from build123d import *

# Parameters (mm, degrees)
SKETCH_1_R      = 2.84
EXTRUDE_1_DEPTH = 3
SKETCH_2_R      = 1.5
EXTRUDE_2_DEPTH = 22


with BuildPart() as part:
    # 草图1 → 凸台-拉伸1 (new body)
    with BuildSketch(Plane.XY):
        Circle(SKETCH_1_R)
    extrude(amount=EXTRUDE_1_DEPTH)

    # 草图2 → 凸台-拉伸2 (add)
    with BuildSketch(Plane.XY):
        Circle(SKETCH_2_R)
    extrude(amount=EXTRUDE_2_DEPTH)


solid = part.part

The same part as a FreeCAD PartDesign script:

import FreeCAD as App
import Part
import Sketcher

doc = App.newDocument("Part")
body = doc.addObject("PartDesign::Body", "Body")

sketch1 = body.newObject("Sketcher::SketchObject", "Sketch")
sketch1.AttachmentSupport = (doc.getObject("XY_Plane"), [""])
sketch1.MapMode = "FlatFace"
sketch1.addGeometry(Part.Circle(App.Vector(0, 0, 0), App.Vector(0, 0, 1), 2.8), False)
sketch1.addConstraint(Sketcher.Constraint("Coincident", 0, 3, -1, 1))
sketch1.addConstraint(Sketcher.Constraint("Diameter", 0, 5.68))
pad1 = body.newObject("PartDesign::Pad", "Pad")
pad1.Profile = sketch1
pad1.Length = 3

sketch2 = body.newObject("Sketcher::SketchObject", "Sketch001")
sketch2.AttachmentSupport = (doc.getObject("XY_Plane"), [""])
sketch2.MapMode = "FlatFace"
sketch2.addGeometry(Part.Circle(App.Vector(0, 0, 0), App.Vector(0, 0, 1), 1.5), False)
sketch2.addConstraint(Sketcher.Constraint("Coincident", 0, 3, -1, 1))
sketch2.addConstraint(Sketcher.Constraint("Diameter", 0, 3.0))
pad2 = body.newObject("PartDesign::Pad", "Pad001")
pad2.Profile = sketch2
pad2.Length = 22

doc.recompute()
